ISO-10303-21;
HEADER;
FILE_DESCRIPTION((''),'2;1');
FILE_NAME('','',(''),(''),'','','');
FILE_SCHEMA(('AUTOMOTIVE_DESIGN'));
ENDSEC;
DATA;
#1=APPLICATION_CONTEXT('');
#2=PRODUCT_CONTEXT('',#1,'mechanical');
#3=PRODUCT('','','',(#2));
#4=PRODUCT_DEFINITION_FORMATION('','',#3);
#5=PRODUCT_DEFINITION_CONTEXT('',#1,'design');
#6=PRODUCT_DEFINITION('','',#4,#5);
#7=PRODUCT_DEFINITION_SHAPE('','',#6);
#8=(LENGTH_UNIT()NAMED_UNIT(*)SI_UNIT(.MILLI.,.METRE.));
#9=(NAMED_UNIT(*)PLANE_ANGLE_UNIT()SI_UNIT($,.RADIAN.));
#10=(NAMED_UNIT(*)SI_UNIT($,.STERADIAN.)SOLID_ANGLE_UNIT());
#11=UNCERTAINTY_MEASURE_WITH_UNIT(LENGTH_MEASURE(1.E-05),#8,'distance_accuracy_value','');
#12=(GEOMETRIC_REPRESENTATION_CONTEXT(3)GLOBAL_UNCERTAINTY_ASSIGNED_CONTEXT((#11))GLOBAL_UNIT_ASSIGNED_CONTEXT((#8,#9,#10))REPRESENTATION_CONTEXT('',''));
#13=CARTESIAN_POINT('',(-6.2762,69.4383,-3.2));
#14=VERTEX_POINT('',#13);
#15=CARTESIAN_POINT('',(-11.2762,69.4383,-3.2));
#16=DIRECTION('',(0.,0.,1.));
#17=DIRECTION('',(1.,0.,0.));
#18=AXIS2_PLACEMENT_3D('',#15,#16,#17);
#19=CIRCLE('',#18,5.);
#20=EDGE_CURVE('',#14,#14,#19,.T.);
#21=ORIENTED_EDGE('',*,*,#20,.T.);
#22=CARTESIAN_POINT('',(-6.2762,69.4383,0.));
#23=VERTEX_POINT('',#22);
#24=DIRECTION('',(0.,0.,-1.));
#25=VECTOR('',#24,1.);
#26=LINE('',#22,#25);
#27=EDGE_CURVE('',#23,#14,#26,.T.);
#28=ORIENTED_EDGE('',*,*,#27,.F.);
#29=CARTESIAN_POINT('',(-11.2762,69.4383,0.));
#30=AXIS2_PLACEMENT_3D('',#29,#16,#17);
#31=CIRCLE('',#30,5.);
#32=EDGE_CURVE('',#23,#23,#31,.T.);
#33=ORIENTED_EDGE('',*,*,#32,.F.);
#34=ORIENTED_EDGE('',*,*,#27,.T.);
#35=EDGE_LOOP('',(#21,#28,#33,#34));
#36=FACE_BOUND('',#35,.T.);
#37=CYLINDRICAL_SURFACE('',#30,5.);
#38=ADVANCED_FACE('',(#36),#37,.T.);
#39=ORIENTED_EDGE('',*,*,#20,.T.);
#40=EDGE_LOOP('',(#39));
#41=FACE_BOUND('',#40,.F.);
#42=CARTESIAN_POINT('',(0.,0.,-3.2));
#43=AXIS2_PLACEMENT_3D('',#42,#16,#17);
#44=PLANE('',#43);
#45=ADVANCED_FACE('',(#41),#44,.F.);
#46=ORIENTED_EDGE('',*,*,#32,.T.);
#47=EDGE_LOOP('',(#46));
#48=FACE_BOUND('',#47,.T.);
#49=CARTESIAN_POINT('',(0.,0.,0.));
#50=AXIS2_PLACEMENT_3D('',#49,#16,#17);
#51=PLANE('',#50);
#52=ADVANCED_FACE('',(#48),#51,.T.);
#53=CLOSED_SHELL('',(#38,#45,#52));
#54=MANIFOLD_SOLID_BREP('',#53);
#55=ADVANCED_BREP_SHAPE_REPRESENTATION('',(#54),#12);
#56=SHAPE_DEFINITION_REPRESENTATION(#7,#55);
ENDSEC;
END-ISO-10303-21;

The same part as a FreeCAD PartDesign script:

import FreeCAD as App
import Part
import Sketcher

V = App.Vector

doc = App.newDocument("Part")
params = doc.addObject("Spreadsheet::Sheet", "Params")
for row, (alias, value) in enumerate([
    ("sketch1_diameter", "10 mm"),
    ("pad1_length", "3.2 mm"),
], start=1):
    params.set(f"A{row}", alias)
    params.set(f"B{row}", "=" + value)
    params.setAlias(f"B{row}", alias)

body = doc.addObject("PartDesign::Body", "Body")

# Sketch on XY plane
sketch1 = doc.addObject("Sketcher::SketchObject", "Sketch")
body.addObject(sketch1)
sketch1.AttachmentSupport = (doc.XY_Plane, [""])
sketch1.MapMode = "FlatFace"
sketch1.addGeometry(Part.Circle(V(-11.2762, 69.4383, 0), V(0, 0, 1), 5), False)
sketch1.addConstraint([
    Sketcher.Constraint("Diameter", 0, 10.0),
    Sketcher.Constraint("DistanceX", 0, 3, -1, 1, 11.2762),
    Sketcher.Constraint("DistanceY", -1, 1, 0, 3, 69.4383),
])
sketch1.setExpression("Constraints[0]", "Params.sketch1_diameter")
pad1 = doc.addObject("PartDesign::Pad", "Pad")
body.addObject(pad1)
pad1.Profile = sketch1
pad1.setExpression("Length", "Params.pad1_length")
pad1.Reversed = True

doc.recompute()
